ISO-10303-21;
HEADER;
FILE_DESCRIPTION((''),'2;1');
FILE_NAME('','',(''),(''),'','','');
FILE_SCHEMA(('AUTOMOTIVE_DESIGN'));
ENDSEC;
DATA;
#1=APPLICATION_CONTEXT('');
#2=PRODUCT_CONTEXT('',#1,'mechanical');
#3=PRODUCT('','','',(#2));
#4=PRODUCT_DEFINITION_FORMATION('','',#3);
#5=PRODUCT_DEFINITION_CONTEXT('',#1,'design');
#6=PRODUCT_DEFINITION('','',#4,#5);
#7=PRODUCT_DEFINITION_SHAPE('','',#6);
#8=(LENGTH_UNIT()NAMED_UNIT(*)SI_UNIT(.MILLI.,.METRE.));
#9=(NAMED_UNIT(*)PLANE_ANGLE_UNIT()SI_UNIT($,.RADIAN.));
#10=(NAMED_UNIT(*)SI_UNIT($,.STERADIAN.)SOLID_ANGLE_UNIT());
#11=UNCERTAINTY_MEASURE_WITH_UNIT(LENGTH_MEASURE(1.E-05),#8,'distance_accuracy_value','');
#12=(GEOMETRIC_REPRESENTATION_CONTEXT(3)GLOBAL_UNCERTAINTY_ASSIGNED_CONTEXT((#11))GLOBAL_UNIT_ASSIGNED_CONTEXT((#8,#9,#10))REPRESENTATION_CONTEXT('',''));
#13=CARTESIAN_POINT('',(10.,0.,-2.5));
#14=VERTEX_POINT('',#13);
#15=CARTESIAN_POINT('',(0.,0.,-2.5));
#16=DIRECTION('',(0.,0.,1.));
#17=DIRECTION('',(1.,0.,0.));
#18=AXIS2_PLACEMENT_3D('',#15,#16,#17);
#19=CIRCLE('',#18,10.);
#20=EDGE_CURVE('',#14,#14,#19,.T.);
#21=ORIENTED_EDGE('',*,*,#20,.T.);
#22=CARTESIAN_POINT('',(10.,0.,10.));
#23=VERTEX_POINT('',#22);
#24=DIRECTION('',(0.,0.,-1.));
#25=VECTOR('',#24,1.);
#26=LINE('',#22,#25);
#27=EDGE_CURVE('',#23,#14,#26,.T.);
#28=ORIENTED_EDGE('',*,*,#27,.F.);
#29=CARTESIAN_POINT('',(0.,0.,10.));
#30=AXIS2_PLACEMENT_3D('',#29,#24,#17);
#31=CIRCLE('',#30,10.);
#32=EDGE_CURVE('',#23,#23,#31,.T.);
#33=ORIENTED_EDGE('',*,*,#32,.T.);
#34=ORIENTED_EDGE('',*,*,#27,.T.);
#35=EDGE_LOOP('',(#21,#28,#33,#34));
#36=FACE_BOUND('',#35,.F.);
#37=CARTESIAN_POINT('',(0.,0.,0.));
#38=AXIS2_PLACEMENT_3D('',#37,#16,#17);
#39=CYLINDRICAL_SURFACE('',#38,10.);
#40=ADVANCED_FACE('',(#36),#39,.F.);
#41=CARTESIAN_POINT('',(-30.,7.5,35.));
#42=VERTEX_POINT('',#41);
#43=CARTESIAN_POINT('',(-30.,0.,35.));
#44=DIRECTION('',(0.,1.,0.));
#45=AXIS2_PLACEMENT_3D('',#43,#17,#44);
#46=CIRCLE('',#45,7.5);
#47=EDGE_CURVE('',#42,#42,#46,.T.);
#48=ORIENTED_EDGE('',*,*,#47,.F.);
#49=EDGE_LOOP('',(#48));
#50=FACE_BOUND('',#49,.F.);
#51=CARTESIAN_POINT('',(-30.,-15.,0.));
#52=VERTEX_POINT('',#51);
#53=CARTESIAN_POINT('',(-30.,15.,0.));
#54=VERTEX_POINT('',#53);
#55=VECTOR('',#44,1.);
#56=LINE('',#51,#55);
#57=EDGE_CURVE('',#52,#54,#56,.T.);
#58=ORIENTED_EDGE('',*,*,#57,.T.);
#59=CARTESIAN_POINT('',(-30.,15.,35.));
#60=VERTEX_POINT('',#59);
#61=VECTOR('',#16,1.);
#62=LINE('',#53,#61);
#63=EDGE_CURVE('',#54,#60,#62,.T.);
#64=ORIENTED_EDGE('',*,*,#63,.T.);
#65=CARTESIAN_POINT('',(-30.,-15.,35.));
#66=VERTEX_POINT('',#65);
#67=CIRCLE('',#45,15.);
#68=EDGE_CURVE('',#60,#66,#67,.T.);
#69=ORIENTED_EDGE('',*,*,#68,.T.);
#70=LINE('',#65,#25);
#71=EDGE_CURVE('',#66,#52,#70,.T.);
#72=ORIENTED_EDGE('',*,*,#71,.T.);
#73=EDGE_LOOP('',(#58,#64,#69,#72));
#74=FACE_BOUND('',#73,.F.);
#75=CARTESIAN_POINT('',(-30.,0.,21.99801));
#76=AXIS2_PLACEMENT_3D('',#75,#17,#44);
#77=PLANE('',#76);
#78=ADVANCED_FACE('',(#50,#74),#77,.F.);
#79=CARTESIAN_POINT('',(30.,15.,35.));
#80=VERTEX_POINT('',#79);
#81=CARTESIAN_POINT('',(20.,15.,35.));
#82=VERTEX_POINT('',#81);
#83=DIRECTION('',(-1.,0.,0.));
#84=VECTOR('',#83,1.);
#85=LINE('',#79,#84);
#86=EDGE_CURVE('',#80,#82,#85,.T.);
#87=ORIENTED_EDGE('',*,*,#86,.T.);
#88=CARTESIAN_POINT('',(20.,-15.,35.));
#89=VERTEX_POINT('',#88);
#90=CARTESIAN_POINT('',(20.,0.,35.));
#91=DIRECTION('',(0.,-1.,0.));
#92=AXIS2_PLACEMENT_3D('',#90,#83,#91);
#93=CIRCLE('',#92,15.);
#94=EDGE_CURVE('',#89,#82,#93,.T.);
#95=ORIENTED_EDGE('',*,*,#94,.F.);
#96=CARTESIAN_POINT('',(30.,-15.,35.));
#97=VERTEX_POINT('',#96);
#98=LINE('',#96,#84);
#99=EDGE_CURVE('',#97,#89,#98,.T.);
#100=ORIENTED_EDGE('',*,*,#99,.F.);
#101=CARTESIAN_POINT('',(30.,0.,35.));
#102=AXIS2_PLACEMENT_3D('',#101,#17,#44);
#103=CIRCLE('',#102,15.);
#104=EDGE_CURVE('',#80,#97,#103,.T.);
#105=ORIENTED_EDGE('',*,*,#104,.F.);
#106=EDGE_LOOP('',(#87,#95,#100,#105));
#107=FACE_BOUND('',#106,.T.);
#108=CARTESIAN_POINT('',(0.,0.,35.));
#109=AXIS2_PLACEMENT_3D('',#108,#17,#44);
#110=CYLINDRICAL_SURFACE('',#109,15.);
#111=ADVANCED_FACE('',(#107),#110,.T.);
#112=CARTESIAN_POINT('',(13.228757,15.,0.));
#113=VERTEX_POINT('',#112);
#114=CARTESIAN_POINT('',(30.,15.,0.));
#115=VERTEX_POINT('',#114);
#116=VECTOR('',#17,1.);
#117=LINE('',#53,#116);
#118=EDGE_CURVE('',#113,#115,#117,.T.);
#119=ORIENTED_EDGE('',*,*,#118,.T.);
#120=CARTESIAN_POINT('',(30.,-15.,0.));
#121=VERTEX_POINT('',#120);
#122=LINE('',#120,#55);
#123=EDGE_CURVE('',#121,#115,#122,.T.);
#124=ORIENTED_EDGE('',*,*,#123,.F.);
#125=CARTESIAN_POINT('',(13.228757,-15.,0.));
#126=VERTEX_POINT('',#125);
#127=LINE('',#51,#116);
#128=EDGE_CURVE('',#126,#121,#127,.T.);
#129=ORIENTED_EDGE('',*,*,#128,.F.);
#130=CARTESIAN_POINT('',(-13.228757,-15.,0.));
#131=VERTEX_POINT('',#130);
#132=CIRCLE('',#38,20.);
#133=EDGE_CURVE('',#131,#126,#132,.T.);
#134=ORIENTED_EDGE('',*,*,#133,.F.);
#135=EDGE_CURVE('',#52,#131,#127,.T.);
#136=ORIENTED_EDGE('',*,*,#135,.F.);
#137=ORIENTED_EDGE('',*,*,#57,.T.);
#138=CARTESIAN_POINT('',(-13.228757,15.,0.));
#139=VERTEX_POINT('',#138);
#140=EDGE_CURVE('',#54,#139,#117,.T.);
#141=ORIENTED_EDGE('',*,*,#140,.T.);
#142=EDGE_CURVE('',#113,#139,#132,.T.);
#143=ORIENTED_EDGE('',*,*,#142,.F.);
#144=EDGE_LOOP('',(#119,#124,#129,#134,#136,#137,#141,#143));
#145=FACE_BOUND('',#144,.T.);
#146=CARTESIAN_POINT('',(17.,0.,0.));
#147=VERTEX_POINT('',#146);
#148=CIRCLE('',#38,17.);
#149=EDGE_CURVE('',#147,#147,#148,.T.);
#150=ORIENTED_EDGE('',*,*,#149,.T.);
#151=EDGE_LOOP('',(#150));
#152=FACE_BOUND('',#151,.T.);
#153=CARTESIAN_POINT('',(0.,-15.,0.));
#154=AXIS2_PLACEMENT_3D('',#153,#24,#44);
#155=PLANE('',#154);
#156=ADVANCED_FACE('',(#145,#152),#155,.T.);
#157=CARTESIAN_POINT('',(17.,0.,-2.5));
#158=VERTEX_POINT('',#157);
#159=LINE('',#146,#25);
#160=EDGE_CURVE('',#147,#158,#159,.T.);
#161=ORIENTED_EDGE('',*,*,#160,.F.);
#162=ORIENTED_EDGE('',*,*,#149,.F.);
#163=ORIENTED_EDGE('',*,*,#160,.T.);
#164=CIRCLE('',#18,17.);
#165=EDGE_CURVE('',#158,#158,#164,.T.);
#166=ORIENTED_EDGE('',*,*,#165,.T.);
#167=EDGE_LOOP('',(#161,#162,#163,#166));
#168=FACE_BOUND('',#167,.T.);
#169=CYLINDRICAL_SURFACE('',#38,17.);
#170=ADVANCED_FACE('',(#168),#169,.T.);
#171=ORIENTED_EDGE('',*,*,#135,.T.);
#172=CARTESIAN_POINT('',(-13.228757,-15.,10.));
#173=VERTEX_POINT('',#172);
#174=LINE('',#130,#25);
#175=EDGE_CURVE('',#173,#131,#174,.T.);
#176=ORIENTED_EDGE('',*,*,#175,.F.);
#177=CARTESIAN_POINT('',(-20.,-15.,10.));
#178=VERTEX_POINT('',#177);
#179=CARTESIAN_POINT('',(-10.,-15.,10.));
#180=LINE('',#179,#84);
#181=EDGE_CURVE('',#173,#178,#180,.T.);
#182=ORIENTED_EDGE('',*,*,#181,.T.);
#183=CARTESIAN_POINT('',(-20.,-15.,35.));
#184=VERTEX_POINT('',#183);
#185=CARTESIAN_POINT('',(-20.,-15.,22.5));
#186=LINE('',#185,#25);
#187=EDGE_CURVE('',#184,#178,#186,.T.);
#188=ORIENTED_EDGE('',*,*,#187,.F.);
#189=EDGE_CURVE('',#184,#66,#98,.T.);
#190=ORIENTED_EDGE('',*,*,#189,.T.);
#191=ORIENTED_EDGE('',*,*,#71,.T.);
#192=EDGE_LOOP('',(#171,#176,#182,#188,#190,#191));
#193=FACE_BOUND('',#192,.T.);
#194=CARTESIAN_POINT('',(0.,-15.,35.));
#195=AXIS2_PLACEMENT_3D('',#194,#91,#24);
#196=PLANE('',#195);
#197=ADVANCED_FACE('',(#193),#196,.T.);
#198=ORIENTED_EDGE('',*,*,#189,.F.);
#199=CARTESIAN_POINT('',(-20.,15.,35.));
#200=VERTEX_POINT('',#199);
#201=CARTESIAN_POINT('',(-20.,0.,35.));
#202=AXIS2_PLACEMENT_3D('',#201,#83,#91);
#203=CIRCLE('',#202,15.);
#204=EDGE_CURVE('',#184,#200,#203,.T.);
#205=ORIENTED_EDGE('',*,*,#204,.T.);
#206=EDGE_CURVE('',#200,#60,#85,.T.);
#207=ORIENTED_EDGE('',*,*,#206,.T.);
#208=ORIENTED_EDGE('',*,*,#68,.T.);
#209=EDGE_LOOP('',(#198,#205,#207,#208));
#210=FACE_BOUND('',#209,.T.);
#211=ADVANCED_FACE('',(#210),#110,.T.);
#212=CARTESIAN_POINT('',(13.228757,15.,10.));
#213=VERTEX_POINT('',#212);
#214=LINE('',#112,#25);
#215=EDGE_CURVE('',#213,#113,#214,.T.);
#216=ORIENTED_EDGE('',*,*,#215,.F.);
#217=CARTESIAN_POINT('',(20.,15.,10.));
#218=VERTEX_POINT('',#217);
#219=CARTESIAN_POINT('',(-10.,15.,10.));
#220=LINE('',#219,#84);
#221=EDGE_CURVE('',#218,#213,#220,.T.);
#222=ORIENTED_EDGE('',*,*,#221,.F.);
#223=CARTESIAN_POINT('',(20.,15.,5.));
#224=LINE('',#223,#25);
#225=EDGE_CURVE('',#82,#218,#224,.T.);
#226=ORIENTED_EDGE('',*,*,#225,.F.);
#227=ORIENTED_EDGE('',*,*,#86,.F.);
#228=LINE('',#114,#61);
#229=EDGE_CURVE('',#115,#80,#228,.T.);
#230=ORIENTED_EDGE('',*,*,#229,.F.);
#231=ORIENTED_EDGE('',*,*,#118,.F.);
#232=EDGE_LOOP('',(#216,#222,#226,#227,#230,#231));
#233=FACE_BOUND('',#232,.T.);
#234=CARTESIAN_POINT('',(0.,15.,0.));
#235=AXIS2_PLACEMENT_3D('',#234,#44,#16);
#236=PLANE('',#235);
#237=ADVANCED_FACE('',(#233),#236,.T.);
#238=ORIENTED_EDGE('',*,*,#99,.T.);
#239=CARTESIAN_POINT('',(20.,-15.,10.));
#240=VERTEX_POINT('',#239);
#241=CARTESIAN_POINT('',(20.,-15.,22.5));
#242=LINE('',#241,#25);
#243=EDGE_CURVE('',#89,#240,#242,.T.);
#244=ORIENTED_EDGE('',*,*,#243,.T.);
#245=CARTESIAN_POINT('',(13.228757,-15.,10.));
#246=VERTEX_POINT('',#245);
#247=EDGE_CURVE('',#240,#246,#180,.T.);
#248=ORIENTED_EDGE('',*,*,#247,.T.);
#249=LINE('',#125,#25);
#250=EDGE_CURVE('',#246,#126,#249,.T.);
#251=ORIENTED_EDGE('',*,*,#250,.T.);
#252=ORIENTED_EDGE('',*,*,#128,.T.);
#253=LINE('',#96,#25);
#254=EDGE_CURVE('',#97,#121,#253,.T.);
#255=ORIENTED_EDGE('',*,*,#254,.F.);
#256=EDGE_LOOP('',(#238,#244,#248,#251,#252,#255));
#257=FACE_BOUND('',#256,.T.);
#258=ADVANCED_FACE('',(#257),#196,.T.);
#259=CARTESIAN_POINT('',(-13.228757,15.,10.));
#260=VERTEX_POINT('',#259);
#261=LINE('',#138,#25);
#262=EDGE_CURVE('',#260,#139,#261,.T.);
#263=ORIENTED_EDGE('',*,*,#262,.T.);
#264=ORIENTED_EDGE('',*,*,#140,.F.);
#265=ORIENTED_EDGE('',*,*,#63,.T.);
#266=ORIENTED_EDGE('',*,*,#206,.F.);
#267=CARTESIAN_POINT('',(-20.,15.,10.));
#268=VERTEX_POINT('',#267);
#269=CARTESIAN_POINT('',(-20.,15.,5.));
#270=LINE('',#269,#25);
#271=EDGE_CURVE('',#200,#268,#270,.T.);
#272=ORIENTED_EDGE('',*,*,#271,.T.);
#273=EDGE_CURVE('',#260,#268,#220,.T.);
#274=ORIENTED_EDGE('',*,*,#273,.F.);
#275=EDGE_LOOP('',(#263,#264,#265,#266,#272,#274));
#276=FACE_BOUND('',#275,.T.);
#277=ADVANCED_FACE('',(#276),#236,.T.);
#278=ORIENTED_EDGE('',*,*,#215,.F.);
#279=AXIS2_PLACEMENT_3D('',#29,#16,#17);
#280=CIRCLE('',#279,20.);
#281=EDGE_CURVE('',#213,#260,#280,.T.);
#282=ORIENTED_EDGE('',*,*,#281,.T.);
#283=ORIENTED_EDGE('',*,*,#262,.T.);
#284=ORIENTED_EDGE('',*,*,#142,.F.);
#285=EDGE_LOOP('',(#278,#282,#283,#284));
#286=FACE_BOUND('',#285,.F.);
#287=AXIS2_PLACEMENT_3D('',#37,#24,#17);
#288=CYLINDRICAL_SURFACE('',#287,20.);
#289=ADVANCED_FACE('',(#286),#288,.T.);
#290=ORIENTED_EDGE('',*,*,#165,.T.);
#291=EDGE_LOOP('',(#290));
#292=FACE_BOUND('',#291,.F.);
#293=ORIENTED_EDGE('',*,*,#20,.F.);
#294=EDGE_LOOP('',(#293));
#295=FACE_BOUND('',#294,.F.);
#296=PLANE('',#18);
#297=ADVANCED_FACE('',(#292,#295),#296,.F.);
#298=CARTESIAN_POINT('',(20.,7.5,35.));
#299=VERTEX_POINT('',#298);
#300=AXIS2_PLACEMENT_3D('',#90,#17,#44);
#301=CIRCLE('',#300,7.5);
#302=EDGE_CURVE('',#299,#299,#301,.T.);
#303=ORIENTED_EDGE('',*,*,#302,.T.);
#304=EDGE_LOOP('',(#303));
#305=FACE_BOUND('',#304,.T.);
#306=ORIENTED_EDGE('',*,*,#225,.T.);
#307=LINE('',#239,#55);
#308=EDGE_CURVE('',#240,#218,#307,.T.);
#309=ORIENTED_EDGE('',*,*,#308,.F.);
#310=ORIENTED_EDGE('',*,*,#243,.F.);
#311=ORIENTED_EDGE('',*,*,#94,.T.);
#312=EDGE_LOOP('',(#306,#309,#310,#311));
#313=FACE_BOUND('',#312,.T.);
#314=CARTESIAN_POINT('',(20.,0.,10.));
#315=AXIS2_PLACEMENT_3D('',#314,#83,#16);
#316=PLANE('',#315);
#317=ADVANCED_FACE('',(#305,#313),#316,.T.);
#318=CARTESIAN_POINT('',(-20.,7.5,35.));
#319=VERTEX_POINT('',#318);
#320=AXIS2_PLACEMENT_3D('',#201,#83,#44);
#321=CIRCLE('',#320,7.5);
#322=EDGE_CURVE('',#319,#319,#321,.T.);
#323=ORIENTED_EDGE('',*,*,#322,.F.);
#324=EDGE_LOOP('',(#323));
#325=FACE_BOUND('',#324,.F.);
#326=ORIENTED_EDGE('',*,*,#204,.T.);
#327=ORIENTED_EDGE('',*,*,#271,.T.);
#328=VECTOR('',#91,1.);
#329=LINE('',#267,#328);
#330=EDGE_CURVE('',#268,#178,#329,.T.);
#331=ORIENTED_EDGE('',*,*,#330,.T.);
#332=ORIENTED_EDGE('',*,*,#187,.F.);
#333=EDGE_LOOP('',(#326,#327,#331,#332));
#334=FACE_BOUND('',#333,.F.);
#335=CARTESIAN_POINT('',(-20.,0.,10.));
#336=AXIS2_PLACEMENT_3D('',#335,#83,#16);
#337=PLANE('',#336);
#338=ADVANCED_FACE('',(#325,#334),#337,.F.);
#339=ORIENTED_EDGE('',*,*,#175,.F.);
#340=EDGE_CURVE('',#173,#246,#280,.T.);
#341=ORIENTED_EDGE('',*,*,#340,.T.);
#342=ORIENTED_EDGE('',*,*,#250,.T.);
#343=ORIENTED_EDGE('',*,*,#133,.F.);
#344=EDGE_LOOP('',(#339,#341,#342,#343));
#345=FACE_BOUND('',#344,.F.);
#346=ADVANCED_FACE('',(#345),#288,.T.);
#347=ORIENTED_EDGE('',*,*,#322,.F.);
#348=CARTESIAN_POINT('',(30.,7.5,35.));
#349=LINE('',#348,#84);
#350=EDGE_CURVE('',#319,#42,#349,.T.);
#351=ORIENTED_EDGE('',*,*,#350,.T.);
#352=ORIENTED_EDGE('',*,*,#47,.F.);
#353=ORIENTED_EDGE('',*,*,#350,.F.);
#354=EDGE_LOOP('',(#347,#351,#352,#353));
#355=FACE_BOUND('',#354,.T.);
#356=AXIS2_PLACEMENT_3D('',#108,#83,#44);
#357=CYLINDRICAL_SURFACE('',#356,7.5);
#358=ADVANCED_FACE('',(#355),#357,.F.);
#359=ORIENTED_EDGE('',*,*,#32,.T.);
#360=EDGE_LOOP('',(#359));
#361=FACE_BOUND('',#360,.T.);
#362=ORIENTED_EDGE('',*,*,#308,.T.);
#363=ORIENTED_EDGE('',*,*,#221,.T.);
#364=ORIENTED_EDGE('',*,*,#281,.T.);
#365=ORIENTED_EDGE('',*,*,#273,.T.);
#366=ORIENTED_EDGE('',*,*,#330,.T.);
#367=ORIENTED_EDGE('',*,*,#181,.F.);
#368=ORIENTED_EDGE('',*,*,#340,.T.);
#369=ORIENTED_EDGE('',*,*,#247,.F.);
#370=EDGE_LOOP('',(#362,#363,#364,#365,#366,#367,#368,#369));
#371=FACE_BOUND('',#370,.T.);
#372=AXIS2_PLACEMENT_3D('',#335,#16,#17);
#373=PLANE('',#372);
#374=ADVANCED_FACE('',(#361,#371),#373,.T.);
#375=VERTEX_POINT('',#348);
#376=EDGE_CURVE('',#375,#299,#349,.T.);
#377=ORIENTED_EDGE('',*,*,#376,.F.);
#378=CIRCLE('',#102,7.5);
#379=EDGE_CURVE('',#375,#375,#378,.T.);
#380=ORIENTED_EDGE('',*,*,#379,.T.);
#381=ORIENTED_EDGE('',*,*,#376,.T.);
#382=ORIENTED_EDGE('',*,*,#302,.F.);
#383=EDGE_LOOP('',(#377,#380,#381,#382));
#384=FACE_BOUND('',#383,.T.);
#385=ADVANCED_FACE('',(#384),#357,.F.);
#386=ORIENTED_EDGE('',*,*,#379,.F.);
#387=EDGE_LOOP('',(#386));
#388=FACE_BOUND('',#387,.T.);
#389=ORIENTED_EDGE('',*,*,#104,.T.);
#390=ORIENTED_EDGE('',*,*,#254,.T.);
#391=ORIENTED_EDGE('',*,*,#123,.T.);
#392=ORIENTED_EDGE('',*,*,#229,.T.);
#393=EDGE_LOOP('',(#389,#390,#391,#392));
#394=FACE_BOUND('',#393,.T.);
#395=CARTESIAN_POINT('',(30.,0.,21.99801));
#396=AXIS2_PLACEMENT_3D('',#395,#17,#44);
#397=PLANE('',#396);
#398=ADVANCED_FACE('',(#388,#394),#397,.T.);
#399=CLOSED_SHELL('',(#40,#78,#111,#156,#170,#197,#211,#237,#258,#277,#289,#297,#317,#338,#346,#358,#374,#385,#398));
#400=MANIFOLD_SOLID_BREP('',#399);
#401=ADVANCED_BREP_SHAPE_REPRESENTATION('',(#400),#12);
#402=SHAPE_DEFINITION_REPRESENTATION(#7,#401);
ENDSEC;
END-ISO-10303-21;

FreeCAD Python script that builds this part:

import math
import FreeCAD as App
import Part
import Sketcher
from FreeCAD import Vector


def add_polygon(sketch, points):
    """Adds a closed chain of lines whose ends are joined by coincident constraints."""
    first, n = sketch.GeometryCount, len(points)
    for a, b in zip(points, points[1:] + points[:1]):
        sketch.addGeometry(Part.LineSegment(App.Vector(*a, 0), App.Vector(*b, 0)), False)
    for i in range(n):
        sketch.addConstraint(Sketcher.Constraint("Coincident", first + i, 2, first + (i + 1) % n, 1))

doc = App.newDocument("Part")
body = doc.addObject("PartDesign::Body", "Body")

# Sketch on YZ plane
sketch1 = body.newObject("Sketcher::SketchObject", "Sketch")
sketch1.AttachmentSupport = (doc.getObject("YZ_Plane"), [""])
sketch1.MapMode = "FlatFace"
sketch1.addGeometry(Part.LineSegment(Vector(-15, 35, 0), Vector(-15, 0, 0)), False)
sketch1.addGeometry(Part.LineSegment(Vector(-15, 0, 0), Vector(15, 0, 0)), False)
sketch1.addGeometry(Part.LineSegment(Vector(15, 0, 0), Vector(15, 35, 0)), False)
sketch1.addGeometry(Part.ArcOfCircle(Part.Circle(Vector(0, 35, 0), Vector(0, 0, 1), 15), math.radians(0), math.radians(180)), False)
sketch1.addGeometry(Part.Circle(Vector(0, 35, 0), Vector(0, 0, 1), 7.5), False)
sketch1.addConstraint(Sketcher.Constraint("Coincident", 0, 2, 1, 1))
sketch1.addConstraint(Sketcher.Constraint("Coincident", 1, 2, 2, 1))
sketch1.addConstraint(Sketcher.Constraint("Tangent", 2, 2, 3, 1))
sketch1.addConstraint(Sketcher.Constraint("Tangent", 3, 2, 0, 1))
sketch1.addConstraint(Sketcher.Constraint("Vertical", 0))
sketch1.addConstraint(Sketcher.Constraint("Horizontal", 1))
sketch1.addConstraint(Sketcher.Constraint("Vertical", 2))
sketch1.addConstraint(Sketcher.Constraint("Coincident", 4, 3, 3, 3))
sketch1.addConstraint(Sketcher.Constraint("Symmetric", 0, 2, 1, 2, -1, 1))
sketch1.addConstraint(Sketcher.Constraint("Diameter", 4, 15.0))
sketch1.addConstraint(Sketcher.Constraint("Radius", 3, 15.0))
sketch1.addConstraint(Sketcher.Constraint("DistanceY", 0, 2, 0, 1, 35.0))
pad1 = body.newObject("PartDesign::Pad", "Pad")
pad1.Profile = sketch1
pad1.Length = 60
pad1.Midplane = True

# Sketch on XZ plane
sketch2 = body.newObject("Sketcher::SketchObject", "Sketch001")
sketch2.AttachmentSupport = (doc.getObject("XZ_Plane"), [""])
sketch2.MapMode = "FlatFace"
add_polygon(sketch2, [(-20, 50), (-20, 10), (20, 10), (20, 50)])  # lines 0-3
sketch2.addConstraint(Sketcher.Constraint("Vertical", 0))
sketch2.addConstraint(Sketcher.Constraint("Horizontal", 1))
sketch2.addConstraint(Sketcher.Constraint("Vertical", 2))
sketch2.addConstraint(Sketcher.Constraint("Horizontal", 3))
sketch2.addConstraint(Sketcher.Constraint("Equal", 3, 0))
sketch2.addConstraint(Sketcher.Constraint("DistanceX", 1, 1, 1, 2, 40.0))
sketch2.addConstraint(Sketcher.Constraint("DistanceX", 0, 2, -1, 1, 20.0))
sketch2.addConstraint(Sketcher.Constraint("DistanceY", -1, 1, 0, 2, 10.0))
pocket1 = body.newObject("PartDesign::Pocket", "Pocket")
pocket1.Profile = sketch2
pocket1.Type = "ThroughAll"
pocket1.Midplane = True

# Sketch on XY plane
sketch3 = body.newObject("Sketcher::SketchObject", "Sketch002")
sketch3.AttachmentSupport = (doc.getObject("XY_Plane"), [""])
sketch3.MapMode = "FlatFace"
sketch3.addGeometry(Part.Circle(Vector(0, 0, 0), Vector(0, 0, 1), 20), False)
sketch3.addConstraint(Sketcher.Constraint("Coincident", 0, 3, -1, 1))
sketch3.addConstraint(Sketcher.Constraint("Diameter", 0, 40.0))
pad2 = body.newObject("PartDesign::Pad", "Pad001")
pad2.Profile = sketch3
pad2.Length = 10

# Sketch on XY plane
sketch4 = body.newObject("Sketcher::SketchObject", "Sketch003")
sketch4.AttachmentSupport = (doc.getObject("XY_Plane"), [""])
sketch4.MapMode = "FlatFace"
sketch4.addGeometry(Part.Circle(Vector(0, 0, 0), Vector(0, 0, 1), 10), False)
sketch4.addConstraint(Sketcher.Constraint("Coincident", 0, 3, -1, 1))
sketch4.addConstraint(Sketcher.Constraint("Diameter", 0, 20.0))
pocket2 = body.newObject("PartDesign::Pocket", "Pocket001")
pocket2.Profile = sketch4
pocket2.Type = "ThroughAll"
pocket2.Midplane = True

# Sketch on XY plane
sketch5 = body.newObject("Sketcher::SketchObject", "Sketch004")
sketch5.AttachmentSupport = (doc.getObject("XY_Plane"), [""])
sketch5.MapMode = "FlatFace"
sketch5.addGeometry(Part.Circle(Vector(0, 0, 0), Vector(0, 0, 1), 17), False)
sketch5.addConstraint(Sketcher.Constraint("Coincident", 0, 3, -1, 1))
sketch5.addConstraint(Sketcher.Constraint("Diameter", 0, 34.0))
pad3 = body.newObject("PartDesign::Pad", "Pad002")
pad3.Profile = sketch5
pad3.Length = 2.5
pad3.Reversed = True

# Sketch on XY plane
sketch6 = body.newObject("Sketcher::SketchObject", "Sketch005")
sketch6.AttachmentSupport = (doc.getObject("XY_Plane"), [""])
sketch6.MapMode = "FlatFace"
sketch6.addGeometry(Part.Circle(Vector(0, 0, 0), Vector(0, 0, 1), 10), False)
sketch6.addConstraint(Sketcher.Constraint("Coincident", 0, 3, -1, 1))
sketch6.addConstraint(Sketcher.Constraint("Diameter", 0, 20.0))
pocket3 = body.newObject("PartDesign::Pocket", "Pocket002")
pocket3.Profile = sketch6
pocket3.Length = 25

doc.recompute()
